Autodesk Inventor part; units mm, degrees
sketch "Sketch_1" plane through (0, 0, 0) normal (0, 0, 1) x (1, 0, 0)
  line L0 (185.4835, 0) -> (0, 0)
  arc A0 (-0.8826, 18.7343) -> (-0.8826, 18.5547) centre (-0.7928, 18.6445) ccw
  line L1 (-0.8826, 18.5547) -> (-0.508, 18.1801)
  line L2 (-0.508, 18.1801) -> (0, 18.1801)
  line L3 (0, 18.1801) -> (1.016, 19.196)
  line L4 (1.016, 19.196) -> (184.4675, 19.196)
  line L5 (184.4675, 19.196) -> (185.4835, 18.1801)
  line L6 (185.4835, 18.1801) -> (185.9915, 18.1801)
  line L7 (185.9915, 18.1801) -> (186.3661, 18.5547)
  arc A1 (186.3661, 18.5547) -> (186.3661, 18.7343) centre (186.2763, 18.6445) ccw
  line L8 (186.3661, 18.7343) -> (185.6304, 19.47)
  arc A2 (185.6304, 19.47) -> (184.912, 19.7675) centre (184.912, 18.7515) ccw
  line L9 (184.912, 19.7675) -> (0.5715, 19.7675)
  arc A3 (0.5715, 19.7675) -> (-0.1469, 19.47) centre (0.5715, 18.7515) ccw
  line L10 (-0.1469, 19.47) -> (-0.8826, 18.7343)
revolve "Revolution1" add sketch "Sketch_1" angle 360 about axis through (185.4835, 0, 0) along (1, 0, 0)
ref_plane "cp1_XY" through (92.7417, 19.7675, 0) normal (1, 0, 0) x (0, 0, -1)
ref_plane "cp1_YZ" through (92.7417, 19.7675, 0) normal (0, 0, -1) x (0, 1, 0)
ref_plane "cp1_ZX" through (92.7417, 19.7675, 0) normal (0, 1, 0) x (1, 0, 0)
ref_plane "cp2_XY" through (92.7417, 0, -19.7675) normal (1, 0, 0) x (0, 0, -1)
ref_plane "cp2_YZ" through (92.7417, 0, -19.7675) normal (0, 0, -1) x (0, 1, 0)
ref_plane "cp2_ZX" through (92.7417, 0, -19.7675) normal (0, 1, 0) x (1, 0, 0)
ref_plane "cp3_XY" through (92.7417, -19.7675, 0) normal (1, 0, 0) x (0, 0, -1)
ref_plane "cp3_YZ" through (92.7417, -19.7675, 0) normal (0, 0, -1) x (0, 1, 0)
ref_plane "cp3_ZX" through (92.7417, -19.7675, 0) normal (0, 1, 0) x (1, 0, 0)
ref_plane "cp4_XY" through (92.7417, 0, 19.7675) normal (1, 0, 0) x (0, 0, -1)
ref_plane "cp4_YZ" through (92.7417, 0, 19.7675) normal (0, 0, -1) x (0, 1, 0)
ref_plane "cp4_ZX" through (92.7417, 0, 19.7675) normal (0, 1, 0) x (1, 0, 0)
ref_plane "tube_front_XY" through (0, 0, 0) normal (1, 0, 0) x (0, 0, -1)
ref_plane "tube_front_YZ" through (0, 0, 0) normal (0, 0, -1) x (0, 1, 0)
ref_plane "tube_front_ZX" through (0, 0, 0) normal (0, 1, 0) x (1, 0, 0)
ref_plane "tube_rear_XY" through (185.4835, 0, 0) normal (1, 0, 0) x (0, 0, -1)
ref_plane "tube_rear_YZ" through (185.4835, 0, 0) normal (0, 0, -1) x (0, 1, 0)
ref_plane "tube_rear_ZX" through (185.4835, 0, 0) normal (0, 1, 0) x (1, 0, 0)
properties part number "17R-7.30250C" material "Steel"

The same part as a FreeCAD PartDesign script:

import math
import FreeCAD as App
import Part
import Sketcher

V = App.Vector
Q = App.Units.Quantity

doc = App.newDocument("Part")
body = doc.addObject("PartDesign::Body", "Body")

# Sketch on XY plane
sketch1 = body.newObject("Sketcher::SketchObject", "Sketch")
sketch1.AttachmentSupport = (doc.getObject("XY_Plane"), [""])
sketch1.MapMode = "FlatFace"
sketch1.addGeometry([
    Part.LineSegment(V(-0.15, 19.47, 0), V(-0.88, 18.73, 0)),  # 0
    Part.ArcOfCircle(Part.Circle(V(-0.79, 18.64, 0), V(0, 0, 1), 0.13), math.radians(135), math.radians(225)),  # 1
    Part.LineSegment(V(-0.88, 18.55, 0), V(-0.51, 18.18, 0)),  # 2
    Part.LineSegment(V(-0.51, 18.18, 0), V(0, 18.18, 0)),  # 3
    Part.LineSegment(V(0, 18.18, 0), V(1.02, 19.2, 0)),  # 4
    Part.LineSegment(V(1.02, 19.2, 0), V(184.47, 19.2, 0)),  # 5
    Part.LineSegment(V(184.47, 19.2, 0), V(185.48, 18.18, 0)),  # 6
    Part.LineSegment(V(185.48, 18.18, 0), V(185.99, 18.18, 0)),  # 7
    Part.LineSegment(V(185.99, 18.18, 0), V(186.37, 18.55, 0)),  # 8
    Part.ArcOfCircle(Part.Circle(V(186.28, 18.64, 0), V(0, 0, 1), 0.13), math.radians(-45), math.radians(45)),  # 9
    Part.LineSegment(V(186.37, 18.73, 0), V(185.63, 19.47, 0)),  # 10
    Part.ArcOfCircle(Part.Circle(V(184.91, 18.75, 0), V(0, 0, 1), 1.02), math.radians(45), math.radians(90)),  # 11
    Part.LineSegment(V(184.91, 19.77, 0), V(0.57, 19.77, 0)),  # 12
    Part.ArcOfCircle(Part.Circle(V(0.57, 18.75, 0), V(0, 0, 1), 1.02), math.radians(90), math.radians(135)),  # 13
], False)
sketch1.addConstraint([
    Sketcher.Constraint("Tangent", 0, 2, 1, 1),
    Sketcher.Constraint("Tangent", 1, 2, 2, 1),
    Sketcher.Constraint("Coincident", 2, 2, 3, 1),
    Sketcher.Constraint("Coincident", 3, 2, 4, 1),
    Sketcher.Constraint("Coincident", 4, 2, 5, 1),
    Sketcher.Constraint("Coincident", 5, 2, 6, 1),
    Sketcher.Constraint("Coincident", 6, 2, 7, 1),
    Sketcher.Constraint("Coincident", 7, 2, 8, 1),
    Sketcher.Constraint("Tangent", 8, 2, 9, 1),
    Sketcher.Constraint("Tangent", 9, 2, 10, 1),
    Sketcher.Constraint("Tangent", 10, 2, 11, 1),
    Sketcher.Constraint("Tangent", 11, 2, 12, 1),
    Sketcher.Constraint("Tangent", 12, 2, 13, 1),
    Sketcher.Constraint("Tangent", 13, 2, 0, 1),
    Sketcher.Constraint("Horizontal", 3),
    Sketcher.Constraint("Horizontal", 5),
    Sketcher.Constraint("Horizontal", 7),
    Sketcher.Constraint("Horizontal", 12),
    Sketcher.Constraint("Equal", 1, 9),
    Sketcher.Constraint("Equal", 11, 13),
    Sketcher.Constraint("PointOnObject", 3, 2, -2),
    Sketcher.Constraint("Perpendicular", 0, 2),
    Sketcher.Constraint("Perpendicular", 2, 4),
    Sketcher.Constraint("Perpendicular", 4, 6),
    Sketcher.Constraint("Perpendicular", 6, 8),
    Sketcher.Constraint("Perpendicular", 8, 10),
    Sketcher.Constraint("Horizontal", 1, 3, 9, 3),
    Sketcher.Constraint("Horizontal", 3, 2, 6, 2),
    Sketcher.Constraint("Horizontal", 1, 2, 8, 2),
    Sketcher.Constraint("Equal", 3, 7),
    Sketcher.Constraint("Radius", 11, Q("0.04 in")),
    Sketcher.Constraint("Radius", 1, Q("0.005 in")),
    Sketcher.Constraint("DistanceX", 3, 1, 3, 2, Q("0.02 in")),
    Sketcher.Constraint("DistanceX", 2, 2, 11, 3, Q("7.3 in")),
    Sketcher.Constraint("DistanceX", -1, 1, 4, 2, Q("0.04 in")),
    Sketcher.Constraint("DistanceX", 5, 1, 5, 2, Q("7.2225 in")),
    Sketcher.Constraint("DistanceY", 6, 2, 11, 2, Q("0.0625 in")),
    Sketcher.Constraint("DistanceY", -1, 1, 1, 2, Q("0.7305 in")),
])
revolution = body.newObject("PartDesign::Revolution", "Revolution")
revolution.Profile = sketch1
revolution.ReferenceAxis = (sketch1, ["H_Axis"])
revolution.Angle = 360

doc.recompute()
